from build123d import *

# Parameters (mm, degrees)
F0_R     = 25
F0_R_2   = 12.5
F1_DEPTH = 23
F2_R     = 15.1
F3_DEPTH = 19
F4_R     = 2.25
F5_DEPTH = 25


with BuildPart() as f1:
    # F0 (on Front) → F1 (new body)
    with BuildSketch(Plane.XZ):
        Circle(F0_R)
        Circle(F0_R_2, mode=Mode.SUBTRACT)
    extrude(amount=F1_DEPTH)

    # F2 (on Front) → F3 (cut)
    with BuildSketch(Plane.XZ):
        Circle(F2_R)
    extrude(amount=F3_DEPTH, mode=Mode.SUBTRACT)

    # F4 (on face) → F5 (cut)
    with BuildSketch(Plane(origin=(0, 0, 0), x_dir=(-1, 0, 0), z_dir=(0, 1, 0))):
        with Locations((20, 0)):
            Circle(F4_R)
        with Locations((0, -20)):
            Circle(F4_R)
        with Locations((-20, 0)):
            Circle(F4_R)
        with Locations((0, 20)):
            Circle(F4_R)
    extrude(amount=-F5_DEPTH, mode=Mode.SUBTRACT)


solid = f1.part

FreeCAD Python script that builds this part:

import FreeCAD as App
import Part
import Sketcher

V = App.Vector
Q = App.Units.Quantity

doc = App.newDocument("Part")
body = doc.addObject("PartDesign::Body", "Body")

sketch1 = body.newObject("Sketcher::SketchObject", "Sketch")
sketch1.AttachmentSupport = (doc.getObject("XZ_Plane"), [""])
sketch1.MapMode = "FlatFace"
sketch1.addGeometry(Part.Circle(V(0, 0, 0), V(0, 0, 1), 25), False)
sketch1.addGeometry(Part.Circle(V(0, 0, 0), V(0, 0, 1), 12), False)
sketch1.addConstraint(Sketcher.Constraint("Coincident", 0, 3, -1, 1))
sketch1.addConstraint(Sketcher.Constraint("Coincident", 1, 3, -1, 1))
sketch1.addConstraint(Sketcher.Constraint("Diameter", 0, Q("50 mm")))
sketch1.addConstraint(Sketcher.Constraint("Diameter", 1, Q("25 mm")))
pad1 = body.newObject("PartDesign::Pad", "Pad")
pad1.Profile = sketch1
pad1.Length = 23

sketch2 = body.newObject("Sketcher::SketchObject", "Sketch001")
sketch2.AttachmentSupport = (doc.getObject("XZ_Plane"), [""])
sketch2.MapMode = "FlatFace"
sketch2.addGeometry(Part.Circle(V(0, 0, 0), V(0, 0, 1), 15), False)
sketch2.addConstraint(Sketcher.Constraint("Coincident", 0, 3, -1, 1))
sketch2.addConstraint(Sketcher.Constraint("Diameter", 0, Q("30.2 mm")))
pocket1 = body.newObject("PartDesign::Pocket", "Pocket")
pocket1.Profile = sketch2
pocket1.Length = 19
pocket1.Reversed = True

sketch3 = body.newObject("Sketcher::SketchObject", "Sketch002")
sketch3.AttachmentSupport = (doc.getObject("XZ_Plane"), [""])
sketch3.MapMode = "FlatFace"
sketch3.addGeometry(Part.Circle(V(-20, 0, 0), V(0, 0, 1), 2.2), False)
sketch3.addGeometry(Part.Circle(V(0, -20, 0), V(0, 0, 1), 2.2), False)
sketch3.addGeometry(Part.Circle(V(20, 0, 0), V(0, 0, 1), 2.2), False)
sketch3.addGeometry(Part.Circle(V(0, 20, 0), V(0, 0, 1), 2.2), False)
sketch3.addConstraint(Sketcher.Constraint("Equal", 0, 1))
sketch3.addConstraint(Sketcher.Constraint("Equal", 1, 2))
sketch3.addConstraint(Sketcher.Constraint("Equal", 2, 3))
sketch3.addConstraint(Sketcher.Constraint("Symmetric", 0, 3, 2, 3, -1, 1))
sketch3.addConstraint(Sketcher.Constraint("Symmetric", 1, 3, 3, 3, -1, 1))
sketch3.addConstraint(Sketcher.Constraint("PointOnObject", 0, 3, -1))
sketch3.addConstraint(Sketcher.Constraint("PointOnObject", 1, 3, -2))
sketch3.addConstraint(Sketcher.Constraint("Diameter", 0, Q("4.5 mm")))
sketch3.addConstraint(Sketcher.Constraint("DistanceX", 0, 3, -1, 1, Q("20 mm")))
sketch3.addConstraint(Sketcher.Constraint("DistanceY", 1, 3, -1, 1, Q("20 mm")))
pocket2 = body.newObject("PartDesign::Pocket", "Pocket001")
pocket2.Profile = sketch3
pocket2.Length = 25
pocket2.Reversed = True

doc.recompute()
